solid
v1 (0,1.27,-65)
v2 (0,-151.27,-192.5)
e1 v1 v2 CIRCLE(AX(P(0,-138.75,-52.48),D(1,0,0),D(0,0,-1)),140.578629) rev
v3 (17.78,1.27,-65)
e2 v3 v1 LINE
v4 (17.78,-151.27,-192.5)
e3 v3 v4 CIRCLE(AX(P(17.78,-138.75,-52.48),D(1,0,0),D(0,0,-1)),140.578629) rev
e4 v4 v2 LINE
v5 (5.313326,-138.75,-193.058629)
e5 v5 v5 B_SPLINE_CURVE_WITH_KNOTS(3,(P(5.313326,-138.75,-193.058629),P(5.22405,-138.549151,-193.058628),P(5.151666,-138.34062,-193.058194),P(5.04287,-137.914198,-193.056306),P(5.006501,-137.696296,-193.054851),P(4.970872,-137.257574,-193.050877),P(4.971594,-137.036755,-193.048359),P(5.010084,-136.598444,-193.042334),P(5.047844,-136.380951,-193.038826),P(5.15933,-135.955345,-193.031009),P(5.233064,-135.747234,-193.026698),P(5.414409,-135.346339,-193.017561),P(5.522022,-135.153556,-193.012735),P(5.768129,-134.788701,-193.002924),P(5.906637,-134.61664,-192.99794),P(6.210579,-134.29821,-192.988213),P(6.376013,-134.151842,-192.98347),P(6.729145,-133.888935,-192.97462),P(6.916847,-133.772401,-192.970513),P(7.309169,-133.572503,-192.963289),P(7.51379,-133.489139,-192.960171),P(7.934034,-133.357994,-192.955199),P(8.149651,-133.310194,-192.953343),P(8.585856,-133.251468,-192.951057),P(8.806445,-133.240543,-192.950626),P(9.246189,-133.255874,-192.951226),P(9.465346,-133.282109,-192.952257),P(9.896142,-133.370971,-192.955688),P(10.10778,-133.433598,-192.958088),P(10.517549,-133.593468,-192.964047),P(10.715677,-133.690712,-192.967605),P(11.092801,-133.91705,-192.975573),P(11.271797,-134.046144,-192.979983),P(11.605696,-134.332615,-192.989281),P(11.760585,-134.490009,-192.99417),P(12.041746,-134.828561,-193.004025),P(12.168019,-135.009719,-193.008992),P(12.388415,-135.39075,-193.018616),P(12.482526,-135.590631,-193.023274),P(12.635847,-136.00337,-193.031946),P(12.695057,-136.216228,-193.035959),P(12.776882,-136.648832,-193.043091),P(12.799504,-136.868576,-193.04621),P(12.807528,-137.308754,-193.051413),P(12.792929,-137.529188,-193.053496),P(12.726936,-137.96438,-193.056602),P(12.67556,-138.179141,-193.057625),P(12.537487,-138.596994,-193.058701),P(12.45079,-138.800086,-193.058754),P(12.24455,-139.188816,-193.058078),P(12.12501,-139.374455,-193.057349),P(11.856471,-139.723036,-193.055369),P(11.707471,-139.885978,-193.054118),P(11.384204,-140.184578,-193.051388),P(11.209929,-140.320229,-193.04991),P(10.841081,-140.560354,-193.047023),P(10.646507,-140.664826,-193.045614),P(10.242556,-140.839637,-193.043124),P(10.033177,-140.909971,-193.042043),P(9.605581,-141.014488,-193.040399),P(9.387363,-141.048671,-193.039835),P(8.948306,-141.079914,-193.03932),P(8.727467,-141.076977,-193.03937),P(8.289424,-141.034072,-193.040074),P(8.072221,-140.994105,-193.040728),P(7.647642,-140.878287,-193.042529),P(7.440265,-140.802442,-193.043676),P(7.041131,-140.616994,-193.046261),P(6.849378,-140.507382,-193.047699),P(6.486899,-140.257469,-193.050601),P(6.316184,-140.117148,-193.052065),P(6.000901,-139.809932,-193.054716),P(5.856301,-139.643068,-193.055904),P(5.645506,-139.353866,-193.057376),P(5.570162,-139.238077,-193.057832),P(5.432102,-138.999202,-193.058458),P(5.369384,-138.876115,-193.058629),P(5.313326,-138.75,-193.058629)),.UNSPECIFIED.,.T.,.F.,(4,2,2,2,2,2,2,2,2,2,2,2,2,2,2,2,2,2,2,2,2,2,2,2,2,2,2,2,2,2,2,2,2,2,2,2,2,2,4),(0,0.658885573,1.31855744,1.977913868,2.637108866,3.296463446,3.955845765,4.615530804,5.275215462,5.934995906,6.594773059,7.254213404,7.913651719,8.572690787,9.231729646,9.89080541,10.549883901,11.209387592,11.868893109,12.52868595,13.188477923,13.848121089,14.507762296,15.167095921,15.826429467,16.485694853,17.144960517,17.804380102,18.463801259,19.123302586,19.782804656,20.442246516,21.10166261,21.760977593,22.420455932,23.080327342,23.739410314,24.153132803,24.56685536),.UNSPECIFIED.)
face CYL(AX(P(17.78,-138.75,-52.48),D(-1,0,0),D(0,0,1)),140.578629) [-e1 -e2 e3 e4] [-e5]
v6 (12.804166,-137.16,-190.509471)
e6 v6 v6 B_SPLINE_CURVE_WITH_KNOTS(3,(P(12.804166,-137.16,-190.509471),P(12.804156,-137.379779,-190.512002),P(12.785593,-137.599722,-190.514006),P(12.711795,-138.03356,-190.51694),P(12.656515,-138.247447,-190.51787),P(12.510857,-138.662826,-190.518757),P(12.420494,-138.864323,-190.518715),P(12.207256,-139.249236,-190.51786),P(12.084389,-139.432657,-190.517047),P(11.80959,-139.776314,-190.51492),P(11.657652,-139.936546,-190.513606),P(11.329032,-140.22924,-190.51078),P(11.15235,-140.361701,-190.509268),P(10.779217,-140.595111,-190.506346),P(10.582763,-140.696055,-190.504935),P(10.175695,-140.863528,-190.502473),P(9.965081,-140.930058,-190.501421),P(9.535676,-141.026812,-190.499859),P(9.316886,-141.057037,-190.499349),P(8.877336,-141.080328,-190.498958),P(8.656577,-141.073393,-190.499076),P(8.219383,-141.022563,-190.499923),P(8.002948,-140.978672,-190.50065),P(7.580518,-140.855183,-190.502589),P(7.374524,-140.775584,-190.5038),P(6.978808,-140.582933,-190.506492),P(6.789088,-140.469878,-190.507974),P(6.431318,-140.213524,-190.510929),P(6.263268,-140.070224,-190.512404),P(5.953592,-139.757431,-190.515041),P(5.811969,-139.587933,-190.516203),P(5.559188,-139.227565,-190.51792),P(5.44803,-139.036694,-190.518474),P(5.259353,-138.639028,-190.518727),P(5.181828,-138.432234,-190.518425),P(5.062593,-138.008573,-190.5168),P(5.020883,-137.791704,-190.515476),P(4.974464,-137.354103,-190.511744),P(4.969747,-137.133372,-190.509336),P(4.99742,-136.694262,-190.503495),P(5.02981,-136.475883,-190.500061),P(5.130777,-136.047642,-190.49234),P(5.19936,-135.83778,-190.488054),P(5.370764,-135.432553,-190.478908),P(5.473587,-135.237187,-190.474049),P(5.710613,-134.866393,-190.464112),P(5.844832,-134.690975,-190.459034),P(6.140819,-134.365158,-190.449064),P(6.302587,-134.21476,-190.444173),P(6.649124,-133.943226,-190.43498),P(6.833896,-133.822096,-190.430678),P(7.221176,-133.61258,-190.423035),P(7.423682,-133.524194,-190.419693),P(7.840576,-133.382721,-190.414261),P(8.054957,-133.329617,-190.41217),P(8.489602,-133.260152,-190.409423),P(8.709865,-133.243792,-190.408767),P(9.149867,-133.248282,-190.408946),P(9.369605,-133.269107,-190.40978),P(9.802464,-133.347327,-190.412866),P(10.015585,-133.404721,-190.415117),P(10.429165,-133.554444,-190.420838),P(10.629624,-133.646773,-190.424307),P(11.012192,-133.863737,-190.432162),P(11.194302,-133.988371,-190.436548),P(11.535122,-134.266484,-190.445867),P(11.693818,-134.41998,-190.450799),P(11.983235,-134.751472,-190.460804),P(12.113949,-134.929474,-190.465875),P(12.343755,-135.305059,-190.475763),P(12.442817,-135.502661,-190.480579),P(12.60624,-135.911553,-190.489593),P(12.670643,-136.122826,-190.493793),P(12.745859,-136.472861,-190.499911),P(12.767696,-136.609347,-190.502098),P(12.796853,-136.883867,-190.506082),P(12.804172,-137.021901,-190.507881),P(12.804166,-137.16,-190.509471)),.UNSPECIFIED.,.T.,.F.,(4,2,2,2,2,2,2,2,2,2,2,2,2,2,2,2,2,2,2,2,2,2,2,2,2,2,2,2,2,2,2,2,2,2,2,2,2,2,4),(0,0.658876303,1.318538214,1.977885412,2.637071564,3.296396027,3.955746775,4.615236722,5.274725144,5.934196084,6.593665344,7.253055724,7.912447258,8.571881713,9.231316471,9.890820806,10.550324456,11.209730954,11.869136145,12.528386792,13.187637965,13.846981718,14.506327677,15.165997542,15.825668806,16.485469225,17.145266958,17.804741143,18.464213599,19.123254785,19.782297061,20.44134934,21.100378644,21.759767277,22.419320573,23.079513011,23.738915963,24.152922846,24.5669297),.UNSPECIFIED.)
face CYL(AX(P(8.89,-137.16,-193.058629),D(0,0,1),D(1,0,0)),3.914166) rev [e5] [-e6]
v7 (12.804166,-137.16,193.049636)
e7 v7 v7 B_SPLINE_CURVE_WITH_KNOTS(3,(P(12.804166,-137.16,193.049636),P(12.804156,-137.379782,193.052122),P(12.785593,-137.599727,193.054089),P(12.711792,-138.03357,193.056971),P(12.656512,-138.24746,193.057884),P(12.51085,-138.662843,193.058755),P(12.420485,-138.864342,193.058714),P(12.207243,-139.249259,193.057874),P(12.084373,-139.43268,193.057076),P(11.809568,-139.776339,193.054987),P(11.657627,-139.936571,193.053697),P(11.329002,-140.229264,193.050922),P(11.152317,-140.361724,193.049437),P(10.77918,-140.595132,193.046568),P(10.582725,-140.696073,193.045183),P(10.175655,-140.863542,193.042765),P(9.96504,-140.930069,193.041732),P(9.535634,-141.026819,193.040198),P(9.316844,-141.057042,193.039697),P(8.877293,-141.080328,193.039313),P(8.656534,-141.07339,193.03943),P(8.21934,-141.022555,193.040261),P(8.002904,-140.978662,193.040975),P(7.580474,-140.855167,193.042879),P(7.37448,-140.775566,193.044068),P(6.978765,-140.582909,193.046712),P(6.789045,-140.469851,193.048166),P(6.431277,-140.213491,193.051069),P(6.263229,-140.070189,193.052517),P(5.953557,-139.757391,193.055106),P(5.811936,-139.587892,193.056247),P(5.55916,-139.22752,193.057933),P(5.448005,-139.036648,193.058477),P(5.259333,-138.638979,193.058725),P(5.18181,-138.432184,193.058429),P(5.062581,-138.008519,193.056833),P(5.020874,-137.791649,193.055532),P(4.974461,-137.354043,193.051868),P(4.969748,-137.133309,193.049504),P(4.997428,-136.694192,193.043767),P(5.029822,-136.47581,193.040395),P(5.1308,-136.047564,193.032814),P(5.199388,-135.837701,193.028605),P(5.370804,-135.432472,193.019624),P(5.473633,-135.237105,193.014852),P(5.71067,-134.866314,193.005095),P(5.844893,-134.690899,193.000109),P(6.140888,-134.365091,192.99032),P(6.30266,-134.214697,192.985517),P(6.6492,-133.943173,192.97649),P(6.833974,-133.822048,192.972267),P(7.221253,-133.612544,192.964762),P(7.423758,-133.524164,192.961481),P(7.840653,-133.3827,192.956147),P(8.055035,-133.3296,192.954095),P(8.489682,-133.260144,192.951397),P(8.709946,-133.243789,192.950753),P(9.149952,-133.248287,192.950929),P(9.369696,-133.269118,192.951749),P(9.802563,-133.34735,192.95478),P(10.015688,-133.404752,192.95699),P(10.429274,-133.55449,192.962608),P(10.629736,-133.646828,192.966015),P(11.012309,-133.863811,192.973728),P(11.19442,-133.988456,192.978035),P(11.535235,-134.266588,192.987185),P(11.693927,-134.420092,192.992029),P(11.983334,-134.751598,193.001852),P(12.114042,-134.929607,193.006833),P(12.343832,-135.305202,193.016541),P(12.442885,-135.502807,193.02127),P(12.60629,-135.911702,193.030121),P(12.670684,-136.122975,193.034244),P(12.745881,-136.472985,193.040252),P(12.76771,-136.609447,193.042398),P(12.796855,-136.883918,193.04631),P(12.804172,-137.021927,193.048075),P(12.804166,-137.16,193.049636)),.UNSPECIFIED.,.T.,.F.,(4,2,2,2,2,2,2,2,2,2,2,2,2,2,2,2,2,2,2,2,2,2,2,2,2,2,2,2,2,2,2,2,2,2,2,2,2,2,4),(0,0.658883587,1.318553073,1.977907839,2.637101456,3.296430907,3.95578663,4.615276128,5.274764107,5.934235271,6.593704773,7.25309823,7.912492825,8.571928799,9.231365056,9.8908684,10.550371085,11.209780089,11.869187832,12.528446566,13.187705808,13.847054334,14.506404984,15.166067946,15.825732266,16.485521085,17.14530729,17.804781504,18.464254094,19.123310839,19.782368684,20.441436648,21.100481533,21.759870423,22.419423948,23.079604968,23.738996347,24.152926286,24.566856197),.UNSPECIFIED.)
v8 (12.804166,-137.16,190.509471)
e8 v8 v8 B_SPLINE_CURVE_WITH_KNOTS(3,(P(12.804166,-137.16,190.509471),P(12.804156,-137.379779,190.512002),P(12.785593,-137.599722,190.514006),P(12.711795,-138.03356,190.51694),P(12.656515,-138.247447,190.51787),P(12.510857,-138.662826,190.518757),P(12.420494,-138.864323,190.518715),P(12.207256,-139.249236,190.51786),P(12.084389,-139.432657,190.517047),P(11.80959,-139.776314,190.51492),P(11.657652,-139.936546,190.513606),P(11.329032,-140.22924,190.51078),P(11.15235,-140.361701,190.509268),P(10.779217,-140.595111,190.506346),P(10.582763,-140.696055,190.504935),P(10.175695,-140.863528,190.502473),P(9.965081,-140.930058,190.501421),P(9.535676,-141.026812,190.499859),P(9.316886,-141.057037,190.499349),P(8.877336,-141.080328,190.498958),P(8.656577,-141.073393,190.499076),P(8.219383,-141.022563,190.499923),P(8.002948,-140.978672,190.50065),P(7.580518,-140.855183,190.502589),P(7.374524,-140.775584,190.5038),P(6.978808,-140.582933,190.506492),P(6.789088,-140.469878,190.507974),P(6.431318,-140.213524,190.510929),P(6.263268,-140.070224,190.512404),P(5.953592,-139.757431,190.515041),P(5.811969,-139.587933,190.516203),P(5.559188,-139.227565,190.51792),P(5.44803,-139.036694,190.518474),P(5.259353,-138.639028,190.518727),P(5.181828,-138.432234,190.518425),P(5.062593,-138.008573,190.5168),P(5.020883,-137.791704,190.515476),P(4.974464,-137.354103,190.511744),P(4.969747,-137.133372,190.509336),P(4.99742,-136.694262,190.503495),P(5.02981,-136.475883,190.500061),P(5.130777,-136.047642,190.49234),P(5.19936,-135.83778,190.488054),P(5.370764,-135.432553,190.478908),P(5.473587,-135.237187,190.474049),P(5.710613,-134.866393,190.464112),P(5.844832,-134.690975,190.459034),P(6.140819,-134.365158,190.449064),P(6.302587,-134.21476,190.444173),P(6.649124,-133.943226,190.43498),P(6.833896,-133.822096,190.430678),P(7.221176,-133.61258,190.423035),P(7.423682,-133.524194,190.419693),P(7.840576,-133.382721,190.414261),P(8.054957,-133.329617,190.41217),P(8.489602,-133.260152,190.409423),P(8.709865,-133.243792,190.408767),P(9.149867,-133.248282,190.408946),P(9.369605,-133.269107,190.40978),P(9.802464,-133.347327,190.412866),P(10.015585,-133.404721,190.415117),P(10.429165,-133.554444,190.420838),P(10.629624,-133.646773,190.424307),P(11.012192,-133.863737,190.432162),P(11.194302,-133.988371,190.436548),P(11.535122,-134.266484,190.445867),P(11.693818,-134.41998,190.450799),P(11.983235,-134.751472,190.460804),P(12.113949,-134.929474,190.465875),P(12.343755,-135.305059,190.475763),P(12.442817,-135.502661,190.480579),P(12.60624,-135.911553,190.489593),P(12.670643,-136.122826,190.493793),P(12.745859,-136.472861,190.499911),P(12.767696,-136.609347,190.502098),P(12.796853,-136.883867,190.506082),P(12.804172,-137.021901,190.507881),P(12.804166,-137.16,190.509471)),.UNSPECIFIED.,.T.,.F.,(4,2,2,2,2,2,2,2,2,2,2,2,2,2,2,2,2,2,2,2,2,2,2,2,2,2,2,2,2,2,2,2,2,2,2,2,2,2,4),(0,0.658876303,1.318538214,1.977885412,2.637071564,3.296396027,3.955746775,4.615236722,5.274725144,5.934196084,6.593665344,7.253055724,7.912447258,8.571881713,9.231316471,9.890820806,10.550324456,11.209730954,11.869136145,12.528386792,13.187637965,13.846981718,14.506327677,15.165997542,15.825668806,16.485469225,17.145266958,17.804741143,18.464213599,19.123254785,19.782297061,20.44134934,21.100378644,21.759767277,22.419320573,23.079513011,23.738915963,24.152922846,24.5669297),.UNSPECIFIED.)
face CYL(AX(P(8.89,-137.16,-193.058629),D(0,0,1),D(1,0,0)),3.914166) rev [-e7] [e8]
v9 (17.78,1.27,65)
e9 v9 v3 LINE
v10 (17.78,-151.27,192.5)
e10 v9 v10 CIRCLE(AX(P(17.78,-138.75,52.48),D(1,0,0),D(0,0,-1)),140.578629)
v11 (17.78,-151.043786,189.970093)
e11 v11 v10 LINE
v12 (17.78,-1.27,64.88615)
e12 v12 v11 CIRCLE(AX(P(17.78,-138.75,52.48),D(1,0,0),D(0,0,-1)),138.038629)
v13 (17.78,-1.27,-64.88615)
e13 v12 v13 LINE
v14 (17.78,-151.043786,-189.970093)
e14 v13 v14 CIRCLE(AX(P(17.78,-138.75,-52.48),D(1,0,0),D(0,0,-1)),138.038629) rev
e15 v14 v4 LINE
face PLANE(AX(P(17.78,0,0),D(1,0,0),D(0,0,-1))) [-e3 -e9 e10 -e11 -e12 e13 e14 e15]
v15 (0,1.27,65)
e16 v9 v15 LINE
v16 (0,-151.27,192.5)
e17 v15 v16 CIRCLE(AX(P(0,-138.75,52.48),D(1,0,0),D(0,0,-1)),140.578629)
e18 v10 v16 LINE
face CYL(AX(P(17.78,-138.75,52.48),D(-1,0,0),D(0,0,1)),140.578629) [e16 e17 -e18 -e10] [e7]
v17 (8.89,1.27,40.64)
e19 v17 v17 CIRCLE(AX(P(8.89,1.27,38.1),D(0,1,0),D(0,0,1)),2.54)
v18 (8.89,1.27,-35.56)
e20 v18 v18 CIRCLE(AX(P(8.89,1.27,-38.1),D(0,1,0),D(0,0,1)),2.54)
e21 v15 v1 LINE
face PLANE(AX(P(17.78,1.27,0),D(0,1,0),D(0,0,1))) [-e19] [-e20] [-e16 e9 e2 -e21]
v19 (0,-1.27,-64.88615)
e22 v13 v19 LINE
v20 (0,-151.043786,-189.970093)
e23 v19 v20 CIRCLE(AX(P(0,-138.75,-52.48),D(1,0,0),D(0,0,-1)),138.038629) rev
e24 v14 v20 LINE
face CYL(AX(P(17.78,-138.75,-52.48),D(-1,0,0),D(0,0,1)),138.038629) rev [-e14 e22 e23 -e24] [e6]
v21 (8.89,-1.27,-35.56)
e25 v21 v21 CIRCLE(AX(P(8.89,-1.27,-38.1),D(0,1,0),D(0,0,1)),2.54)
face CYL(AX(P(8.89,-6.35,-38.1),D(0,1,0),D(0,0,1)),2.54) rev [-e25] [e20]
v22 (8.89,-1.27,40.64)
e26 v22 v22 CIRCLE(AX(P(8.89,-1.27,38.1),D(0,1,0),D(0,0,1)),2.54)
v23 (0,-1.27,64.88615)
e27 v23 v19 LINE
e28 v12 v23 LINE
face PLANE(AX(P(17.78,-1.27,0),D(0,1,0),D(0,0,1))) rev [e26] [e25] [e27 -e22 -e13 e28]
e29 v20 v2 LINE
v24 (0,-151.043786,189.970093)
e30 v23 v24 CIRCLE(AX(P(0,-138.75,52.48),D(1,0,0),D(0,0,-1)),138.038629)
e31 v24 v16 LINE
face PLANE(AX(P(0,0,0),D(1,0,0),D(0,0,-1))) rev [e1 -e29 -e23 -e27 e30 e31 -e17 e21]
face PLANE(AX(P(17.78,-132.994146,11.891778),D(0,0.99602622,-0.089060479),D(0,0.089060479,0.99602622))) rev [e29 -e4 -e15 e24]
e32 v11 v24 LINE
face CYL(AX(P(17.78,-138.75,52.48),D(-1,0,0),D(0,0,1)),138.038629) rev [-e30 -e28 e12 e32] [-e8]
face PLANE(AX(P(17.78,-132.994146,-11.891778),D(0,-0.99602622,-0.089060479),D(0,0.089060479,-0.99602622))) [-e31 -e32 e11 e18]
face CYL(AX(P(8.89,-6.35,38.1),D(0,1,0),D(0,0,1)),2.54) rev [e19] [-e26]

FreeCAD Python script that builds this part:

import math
import FreeCAD as App
import Part
import Sketcher

V = App.Vector
Q = App.Units.Quantity

doc = App.newDocument("Part")
body = doc.addObject("PartDesign::Body", "Body")

# Sketch on YZ plane
sketch1 = doc.addObject("Sketcher::SketchObject", "Sketch")
body.addObject(sketch1)
sketch1.AttachmentSupport = (doc.YZ_Plane, [""])
sketch1.MapMode = "FlatFace"
sketch1.addGeometry(Part.LineSegment(V(1.27, -65, 0), V(1.27, 65, 0)), False)
sketch1.addGeometry(Part.ArcOfCircle(Part.Circle(V(-138.75, 52.48, 0), V(0, 0, 1), 140.578629), math.radians(5.109559), math.radians(95.109559)), False)
sketch1.addGeometry(Part.LineSegment(V(-151.27, 192.5, 0), V(-151.043786, 189.970093, 0)), False)
sketch1.addGeometry(Part.ArcOfCircle(Part.Circle(V(-138.75, 52.48, 0), V(0, 0, 1), 138.038629), math.radians(5.156386), math.radians(95.109559)), False)
sketch1.addGeometry(Part.LineSegment(V(-1.27, 64.88615, 0), V(-1.27, -64.88615, 0)), False)
sketch1.addGeometry(Part.ArcOfCircle(Part.Circle(V(-138.75, -52.48, 0), V(0, 0, 1), 138.038629), math.radians(-95.109559), math.radians(-5.156386)), False)
sketch1.addGeometry(Part.LineSegment(V(-151.043786, -189.970093, 0), V(-151.27, -192.5, 0)), False)
sketch1.addGeometry(Part.ArcOfCircle(Part.Circle(V(-138.75, -52.48, 0), V(0, 0, 1), 140.578629), math.radians(-95.109559), math.radians(-5.109559)), False)
sketch1.addConstraint(Sketcher.Constraint("Coincident", 0, 2, 1, 1))
sketch1.addConstraint(Sketcher.Constraint("Coincident", 1, 2, 2, 1))
sketch1.addConstraint(Sketcher.Constraint("Coincident", 2, 2, 3, 2))
sketch1.addConstraint(Sketcher.Constraint("Coincident", 3, 1, 4, 1))
sketch1.addConstraint(Sketcher.Constraint("Coincident", 4, 2, 5, 2))
sketch1.addConstraint(Sketcher.Constraint("Coincident", 5, 1, 6, 1))
sketch1.addConstraint(Sketcher.Constraint("Coincident", 6, 2, 7, 1))
sketch1.addConstraint(Sketcher.Constraint("Coincident", 7, 2, 0, 1))
sketch1.addConstraint(Sketcher.Constraint("Vertical", 0))
sketch1.addConstraint(Sketcher.Constraint("Vertical", 4))
sketch1.addConstraint(Sketcher.Constraint("Coincident", 3, 3, 1, 3))
sketch1.addConstraint(Sketcher.Constraint("Coincident", 7, 3, 5, 3))
sketch1.addConstraint(Sketcher.Constraint("Equal", 3, 5))
sketch1.addConstraint(Sketcher.Constraint("Equal", 1, 7))
sketch1.addConstraint(Sketcher.Constraint("Symmetric", 1, 3, 5, 3, -1))
sketch1.addConstraint(Sketcher.Constraint("Vertical", 2, 2, 5, 1))
sketch1.addConstraint(Sketcher.Constraint("Vertical", 1, 2, 6, 2))
sketch1.addConstraint(Sketcher.Constraint("Distance", 2, Q("0.1 in")))
sketch1.addConstraint(Sketcher.Constraint("DistanceX", 3, 1, 0, 2, Q("0.1 in")))
sketch1.addConstraint(Sketcher.Constraint("DistanceX", -1, 1, 0, 2, Q("0.05 in")))
sketch1.addConstraint(Sketcher.Constraint("Radius", 1, 140.578629))
sketch1.addConstraint(Sketcher.Constraint("DistanceY", 0, 1, 0, 2, 130.0))
sketch1.addConstraint(Sketcher.Constraint("DistanceY", 4, 2, 4, 1, 129.772301))
sketch1.addConstraint(Sketcher.Constraint("DistanceX", 1, 2, -1, 1, 151.27))
sketch1.addConstraint(Sketcher.Constraint("DistanceX", 2, 2, -1, 1, 151.043786))
pad1 = doc.addObject("PartDesign::Pad", "Pad")
body.addObject(pad1)
pad1.Profile = sketch1
pad1.Length = Q("0.7 in")

# Sketch on XY plane
sketch2 = doc.addObject("Sketcher::SketchObject", "Sketch001")
body.addObject(sketch2)
sketch2.AttachmentSupport = (doc.XY_Plane, [""])
sketch2.MapMode = "FlatFace"
sketch2.addGeometry(Part.Circle(V(8.89, -137.16, 0), V(0, 0, 1), 3.914166), False)
sketch2.addConstraint(Sketcher.Constraint("DistanceY", 0, 3, -1, 1, Q("5.4 in")))
sketch2.addConstraint(Sketcher.Constraint("DistanceX", -1, 1, 0, 3, Q("0.35 in")))
sketch2.addConstraint(Sketcher.Constraint("Diameter", 0, 7.828332))
pocket1 = doc.addObject("PartDesign::Pocket", "Pocket")
body.addObject(pocket1)
pocket1.Profile = sketch2
pocket1.Type = "ThroughAll"
pocket1.Midplane = True

# Sketch on XZ plane
sketch3 = doc.addObject("Sketcher::SketchObject", "Sketch002")
body.addObject(sketch3)
sketch3.AttachmentSupport = (doc.XZ_Plane, [""])
sketch3.MapMode = "FlatFace"
sketch3.AttachmentOffset = App.Placement(V(0, 0, -0.05 * 25.4), App.Rotation())
sketch3.addGeometry(Part.Circle(V(8.89, -38.1, 0), V(0, 0, 1), 2.54), False)
sketch3.addGeometry(Part.Circle(V(8.89, 38.1, 0), V(0, 0, 1), 2.54), False)
sketch3.addConstraint(Sketcher.Constraint("Equal", 0, 1))
sketch3.addConstraint(Sketcher.Constraint("Symmetric", 0, 3, 1, 3, -1))
sketch3.addConstraint(Sketcher.Constraint("Diameter", 0, Q("0.2 in")))
sketch3.addConstraint(Sketcher.Constraint("DistanceY", 0, 3, 1, 3, Q("3 in")))
sketch3.addConstraint(Sketcher.Constraint("DistanceX", -1, 1, 0, 3, Q("0.35 in")))
pocket2 = doc.addObject("PartDesign::Pocket", "Pocket001")
body.addObject(pocket2)
pocket2.Profile = sketch3
pocket2.Length = Q("0.3 in")
pocket2.Reversed = True

doc.recompute()
